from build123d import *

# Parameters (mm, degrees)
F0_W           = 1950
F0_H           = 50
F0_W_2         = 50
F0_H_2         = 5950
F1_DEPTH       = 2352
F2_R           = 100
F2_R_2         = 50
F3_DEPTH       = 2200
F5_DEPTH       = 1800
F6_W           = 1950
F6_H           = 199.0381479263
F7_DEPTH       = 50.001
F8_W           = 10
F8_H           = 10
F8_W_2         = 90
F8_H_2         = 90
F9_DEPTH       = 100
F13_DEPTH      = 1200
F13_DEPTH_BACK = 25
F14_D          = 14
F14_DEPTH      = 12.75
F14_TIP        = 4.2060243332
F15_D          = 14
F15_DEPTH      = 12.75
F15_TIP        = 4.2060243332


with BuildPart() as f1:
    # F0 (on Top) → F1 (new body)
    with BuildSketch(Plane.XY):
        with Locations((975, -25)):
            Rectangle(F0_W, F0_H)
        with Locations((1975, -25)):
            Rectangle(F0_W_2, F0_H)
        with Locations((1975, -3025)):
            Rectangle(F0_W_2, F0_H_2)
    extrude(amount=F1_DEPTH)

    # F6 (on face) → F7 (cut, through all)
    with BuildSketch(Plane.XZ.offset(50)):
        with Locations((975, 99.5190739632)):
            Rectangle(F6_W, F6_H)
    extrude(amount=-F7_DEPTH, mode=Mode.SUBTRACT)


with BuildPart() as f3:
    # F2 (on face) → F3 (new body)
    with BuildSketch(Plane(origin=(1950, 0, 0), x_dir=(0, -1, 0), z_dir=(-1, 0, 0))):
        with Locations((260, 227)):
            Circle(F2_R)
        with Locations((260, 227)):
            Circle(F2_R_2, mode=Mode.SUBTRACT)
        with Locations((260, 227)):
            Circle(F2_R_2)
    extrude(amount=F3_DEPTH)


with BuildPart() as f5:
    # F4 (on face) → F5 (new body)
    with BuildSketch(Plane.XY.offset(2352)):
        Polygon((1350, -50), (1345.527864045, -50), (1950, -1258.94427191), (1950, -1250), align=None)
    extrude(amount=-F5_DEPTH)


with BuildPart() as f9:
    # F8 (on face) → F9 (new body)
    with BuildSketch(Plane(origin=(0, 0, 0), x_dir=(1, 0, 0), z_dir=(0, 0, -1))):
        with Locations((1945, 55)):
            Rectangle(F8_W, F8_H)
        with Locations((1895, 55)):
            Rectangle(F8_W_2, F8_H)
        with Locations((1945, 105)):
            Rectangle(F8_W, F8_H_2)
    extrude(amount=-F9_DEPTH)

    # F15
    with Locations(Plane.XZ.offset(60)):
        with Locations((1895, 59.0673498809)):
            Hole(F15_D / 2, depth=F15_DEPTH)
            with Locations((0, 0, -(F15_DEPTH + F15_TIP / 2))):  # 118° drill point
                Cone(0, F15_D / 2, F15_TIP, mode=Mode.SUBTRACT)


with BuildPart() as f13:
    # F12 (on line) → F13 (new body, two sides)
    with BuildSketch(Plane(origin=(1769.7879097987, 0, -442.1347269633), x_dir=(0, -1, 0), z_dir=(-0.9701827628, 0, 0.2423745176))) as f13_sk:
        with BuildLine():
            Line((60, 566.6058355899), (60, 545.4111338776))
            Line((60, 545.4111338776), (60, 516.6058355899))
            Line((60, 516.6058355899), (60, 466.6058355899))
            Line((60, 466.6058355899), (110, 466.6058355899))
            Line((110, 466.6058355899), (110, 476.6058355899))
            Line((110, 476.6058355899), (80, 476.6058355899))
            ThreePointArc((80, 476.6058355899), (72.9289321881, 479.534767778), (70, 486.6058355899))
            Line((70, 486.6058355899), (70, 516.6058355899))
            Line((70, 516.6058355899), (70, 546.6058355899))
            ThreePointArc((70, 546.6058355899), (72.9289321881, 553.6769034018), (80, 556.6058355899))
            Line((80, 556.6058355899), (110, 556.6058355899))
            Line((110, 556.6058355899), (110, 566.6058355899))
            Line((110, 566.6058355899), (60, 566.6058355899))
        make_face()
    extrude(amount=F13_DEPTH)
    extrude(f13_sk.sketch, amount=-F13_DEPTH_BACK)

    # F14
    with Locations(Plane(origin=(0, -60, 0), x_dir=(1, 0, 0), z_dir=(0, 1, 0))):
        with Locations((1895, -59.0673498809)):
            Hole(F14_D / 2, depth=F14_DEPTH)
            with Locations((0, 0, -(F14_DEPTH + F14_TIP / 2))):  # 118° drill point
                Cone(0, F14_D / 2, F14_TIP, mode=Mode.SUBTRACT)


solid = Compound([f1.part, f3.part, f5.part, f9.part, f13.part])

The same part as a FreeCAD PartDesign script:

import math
import FreeCAD as App
import Part
import Sketcher
Q = App.Units.Quantity


def add_polygon(sketch, points):
    """Adds a closed chain of lines whose ends are joined by coincident constraints."""
    first, n = sketch.GeometryCount, len(points)
    for a, b in zip(points, points[1:] + points[:1]):
        sketch.addGeometry(Part.LineSegment(App.Vector(*a, 0), App.Vector(*b, 0)), False)
    for i in range(n):
        sketch.addConstraint(Sketcher.Constraint("Coincident", first + i, 2, first + (i + 1) % n, 1))

doc = App.newDocument("Part")
body = doc.addObject("PartDesign::Body", "Body")

sketch1 = body.newObject("Sketcher::SketchObject", "Sketch")
sketch1.AttachmentSupport = (doc.getObject("XY_Plane"), [""])
sketch1.MapMode = "FlatFace"
add_polygon(sketch1, [(0, 0), (0, -50), (1950, -50), (1950, -6000), (2000, -6000), (2000, 0)])
sketch1.addConstraint(Sketcher.Constraint("Vertical", 0))
sketch1.addConstraint(Sketcher.Constraint("Horizontal", 1))
sketch1.addConstraint(Sketcher.Constraint("Vertical", 2))
sketch1.addConstraint(Sketcher.Constraint("Horizontal", 3))
sketch1.addConstraint(Sketcher.Constraint("Vertical", 4))
sketch1.addConstraint(Sketcher.Constraint("Horizontal", 5))
sketch1.addConstraint(Sketcher.Constraint("Coincident", 5, 2, -1, 1))
sketch1.addConstraint(Sketcher.Constraint("Equal", 3, 0))
sketch1.addConstraint(Sketcher.Constraint("DistanceX", 1, 1, 1, 2, Q("1950 mm")))
sketch1.addConstraint(Sketcher.Constraint("DistanceX", 3, 1, 3, 2, Q("50 mm")))
sketch1.addConstraint(Sketcher.Constraint("DistanceY", 2, 2, 2, 1, Q("5950 mm")))
pad1 = body.newObject("PartDesign::Pad", "Pad")
pad1.Profile = sketch1
pad1.Length = 2352

sketch2 = body.newObject("Sketcher::SketchObject", "Sketch001")
sketch2.AttachmentSupport = (doc.getObject("XZ_Plane"), [""])
sketch2.MapMode = "FlatFace"
sketch2.AttachmentOffset = App.Placement(App.Vector(0, 0, 50), App.Rotation())
add_polygon(sketch2, [(0, 199), (0, 0), (1950, 0), (1950, 199)])
sketch2.addConstraint(Sketcher.Constraint("Vertical", 0))
sketch2.addConstraint(Sketcher.Constraint("Horizontal", 1))
sketch2.addConstraint(Sketcher.Constraint("Vertical", 2))
sketch2.addConstraint(Sketcher.Constraint("Horizontal", 3))
sketch2.addConstraint(Sketcher.Constraint("Coincident", 0, 2, -1, 1))
sketch2.addConstraint(Sketcher.Constraint("DistanceX", 1, 1, 1, 2, Q("1950 mm")))
sketch2.addConstraint(Sketcher.Constraint("DistanceY", 0, 2, 0, 1, Q("199.038148 mm")))
pocket1 = body.newObject("PartDesign::Pocket", "Pocket")
pocket1.Profile = sketch2
pocket1.Type = "ThroughAll"
body2 = doc.addObject("PartDesign::Body", "Body001")

sketch3 = body2.newObject("Sketcher::SketchObject", "Sketch002")
sketch3.AttachmentSupport = (doc.getObject("YZ_Plane001"), [""])
sketch3.MapMode = "FlatFace"
sketch3.AttachmentOffset = App.Placement(App.Vector(0, 0, 1950), App.Rotation())
sketch3.addGeometry(Part.Circle(App.Vector(-260, 227, 0), App.Vector(0, 0, 1), 100), False)
sketch3.addConstraint(Sketcher.Constraint("Diameter", 0, Q("200 mm")))
sketch3.addConstraint(Sketcher.Constraint("DistanceX", 0, 3, -1, 1, Q("260 mm")))
sketch3.addConstraint(Sketcher.Constraint("DistanceY", -1, 1, 0, 3, Q("227 mm")))
pad2 = body2.newObject("PartDesign::Pad", "Pad001")
pad2.Profile = sketch3
pad2.Length = 2200
pad2.Reversed = True
body3 = doc.addObject("PartDesign::Body", "Body002")

sketch4 = body3.newObject("Sketcher::SketchObject", "Sketch003")
sketch4.AttachmentSupport = (doc.getObject("XY_Plane002"), [""])
sketch4.MapMode = "FlatFace"
sketch4.AttachmentOffset = App.Placement(App.Vector(0, 0, 2352), App.Rotation())
add_polygon(sketch4, [(1350, -50), (1345.5, -50), (1950, -1258.9), (1950, -1250)])
sketch4.addConstraint(Sketcher.Constraint("Horizontal", 0))
sketch4.addConstraint(Sketcher.Constraint("Vertical", 2))
sketch4.addConstraint(Sketcher.Constraint("Parallel", 1, 3))
sketch4.addConstraint(Sketcher.Constraint("DistanceY", 0, 2, -1, 1, Q("50 mm")))
sketch4.addConstraint(Sketcher.Constraint("DistanceX", -1, 1, 1, 2, Q("1950 mm")))
sketch4.addConstraint(Sketcher.Constraint("DistanceY", 2, 2, -1, 1, Q("1250 mm")))
sketch4.addConstraint(Sketcher.Constraint("DistanceX", -1, 1, 3, 2, Q("1350 mm")))
sketch4.addConstraint(Sketcher.Constraint("DistanceY", 2, 1, 2, 2, Q("8.944272 mm")))
pad3 = body3.newObject("PartDesign::Pad", "Pad002")
pad3.Profile = sketch4
pad3.Length = 1800
pad3.Reversed = True
body4 = doc.addObject("PartDesign::Body", "Body003")

sketch5 = body4.newObject("Sketcher::SketchObject", "Sketch004")
sketch5.AttachmentSupport = (doc.getObject("XY_Plane003"), [""])
sketch5.MapMode = "FlatFace"
add_polygon(sketch5, [(1950, -50), (1950, -150), (1940, -150), (1940, -60), (1850, -60), (1850, -50)])
sketch5.addConstraint(Sketcher.Constraint("Vertical", 0))
sketch5.addConstraint(Sketcher.Constraint("Horizontal", 1))
sketch5.addConstraint(Sketcher.Constraint("Vertical", 2))
sketch5.addConstraint(Sketcher.Constraint("Horizontal", 3))
sketch5.addConstraint(Sketcher.Constraint("Vertical", 4))
sketch5.addConstraint(Sketcher.Constraint("Horizontal", 5))
sketch5.addConstraint(Sketcher.Constraint("Equal", 5, 0))
sketch5.addConstraint(Sketcher.Constraint("Equal", 3, 2))
sketch5.addConstraint(Sketcher.Constraint("DistanceX", 1, 2, 1, 1, Q("10 mm")))
sketch5.addConstraint(Sketcher.Constraint("DistanceX", 3, 2, 3, 1, Q("90 mm")))
sketch5.addConstraint(Sketcher.Constraint("DistanceX", -1, 1, 0, 2, Q("1950 mm")))
sketch5.addConstraint(Sketcher.Constraint("DistanceY", 0, 2, -1, 1, Q("150 mm")))
pad4 = body4.newObject("PartDesign::Pad", "Pad003")
pad4.Profile = sketch5
pad4.Length = 100

sketch6 = body4.newObject("Sketcher::SketchObject", "Sketch005")
sketch6.AttachmentSupport = (doc.getObject("XZ_Plane003"), [""])
sketch6.MapMode = "FlatFace"
sketch6.AttachmentOffset = App.Placement(App.Vector(0, 0, 60), App.Rotation())
sketch6.addGeometry(Part.Circle(App.Vector(1895, 59, 0), App.Vector(0, 0, 1), 7), False)
sketch6.addConstraint(Sketcher.Constraint("Diameter", 0, Q("14 mm")))
sketch6.addConstraint(Sketcher.Constraint("DistanceX", -1, 1, 0, 3, Q("1895 mm")))
sketch6.addConstraint(Sketcher.Constraint("DistanceY", -1, 1, 0, 3, Q("59.06735 mm")))
doc.recompute()
hole = body4.newObject("PartDesign::Hole", "Hole")
hole.Profile = sketch6
hole.ThreadType = "None"
hole.Diameter = 14
hole.DepthType = "Dimension"
hole.Depth = 12.75
hole.DrillPoint = "Angled"
hole.DrillPointAngle = 118
body5 = doc.addObject("PartDesign::Body", "Body004")

sketch7 = body5.newObject("Sketcher::SketchObject", "Sketch006")
sketch7.Placement = App.Placement(App.Vector(1769.78791, 0, -442.134727), App.Rotation(App.Vector(0, -1, 0), App.Vector(0.242374518, 0, 0.970182763), App.Vector(-0.970182763, 0, 0.242374518), "ZXY"))
sketch7.addGeometry(Part.LineSegment(App.Vector(60, 567, 0), App.Vector(60, 467, 0)), False)
sketch7.addGeometry(Part.LineSegment(App.Vector(60, 467, 0), App.Vector(110, 467, 0)), False)
sketch7.addGeometry(Part.LineSegment(App.Vector(110, 467, 0), App.Vector(110, 477, 0)), False)
sketch7.addGeometry(Part.LineSegment(App.Vector(110, 477, 0), App.Vector(80, 477, 0)), False)
sketch7.addGeometry(Part.ArcOfCircle(Part.Circle(App.Vector(80, 487, 0), App.Vector(0, 0, 1), 10), math.radians(180), math.radians(270)), False)
sketch7.addGeometry(Part.LineSegment(App.Vector(70, 487, 0), App.Vector(70, 547, 0)), False)
sketch7.addGeometry(Part.ArcOfCircle(Part.Circle(App.Vector(80, 547, 0), App.Vector(0, 0, 1), 10), math.radians(90), math.radians(180)), False)
sketch7.addGeometry(Part.LineSegment(App.Vector(80, 557, 0), App.Vector(110, 557, 0)), False)
sketch7.addGeometry(Part.LineSegment(App.Vector(110, 557, 0), App.Vector(110, 567, 0)), False)
sketch7.addGeometry(Part.LineSegment(App.Vector(110, 567, 0), App.Vector(60, 567, 0)), False)
sketch7.addConstraint(Sketcher.Constraint("Coincident", 0, 2, 1, 1))
sketch7.addConstraint(Sketcher.Constraint("Coincident", 1, 2, 2, 1))
sketch7.addConstraint(Sketcher.Constraint("Coincident", 2, 2, 3, 1))
sketch7.addConstraint(Sketcher.Constraint("Tangent", 3, 2, 4, 2))
sketch7.addConstraint(Sketcher.Constraint("Tangent", 4, 1, 5, 1))
sketch7.addConstraint(Sketcher.Constraint("Tangent", 5, 2, 6, 2))
sketch7.addConstraint(Sketcher.Constraint("Tangent", 6, 1, 7, 1))
sketch7.addConstraint(Sketcher.Constraint("Coincident", 7, 2, 8, 1))
sketch7.addConstraint(Sketcher.Constraint("Coincident", 8, 2, 9, 1))
sketch7.addConstraint(Sketcher.Constraint("Coincident", 9, 2, 0, 1))
sketch7.addConstraint(Sketcher.Constraint("Vertical", 0))
sketch7.addConstraint(Sketcher.Constraint("Horizontal", 1))
sketch7.addConstraint(Sketcher.Constraint("Vertical", 2))
sketch7.addConstraint(Sketcher.Constraint("Horizontal", 3))
sketch7.addConstraint(Sketcher.Constraint("Vertical", 5))
sketch7.addConstraint(Sketcher.Constraint("Horizontal", 7))
sketch7.addConstraint(Sketcher.Constraint("Vertical", 8))
sketch7.addConstraint(Sketcher.Constraint("Horizontal", 9))
sketch7.addConstraint(Sketcher.Constraint("Equal", 4, 6))
sketch7.addConstraint(Sketcher.Constraint("Vertical", 2, 2, 7, 2))
sketch7.addConstraint(Sketcher.Constraint("Equal", 2, 8))
sketch7.addConstraint(Sketcher.Constraint("Radius", 4, Q("10 mm")))
sketch7.addConstraint(Sketcher.Constraint("DistanceX", 1, 1, 1, 2, Q("50 mm")))
sketch7.addConstraint(Sketcher.Constraint("DistanceX", 3, 2, 3, 1, Q("30 mm")))
sketch7.addConstraint(Sketcher.Constraint("DistanceY", 0, 2, 0, 1, Q("100 mm")))
sketch7.addConstraint(Sketcher.Constraint("DistanceY", 2, 1, 2, 2, Q("10 mm")))
sketch7.addConstraint(Sketcher.Constraint("DistanceX", -1, 1, 4, 3, Q("80 mm")))
sketch7.addConstraint(Sketcher.Constraint("DistanceY", -1, 1, 4, 3, Q("486.605836 mm")))
pad5 = body5.newObject("PartDesign::Pad", "Pad004")
pad5.Profile = sketch7
pad5.Type = "TwoLengths"
pad5.Length = 1200
pad5.Length2 = 25

sketch8 = body5.newObject("Sketcher::SketchObject", "Sketch007")
sketch8.AttachmentSupport = (doc.getObject("XZ_Plane004"), [""])
sketch8.MapMode = "FlatFace"
sketch8.AttachmentOffset = App.Placement(App.Vector(0, 0, 60), App.Rotation())
sketch8.addGeometry(Part.Circle(App.Vector(1895, 59, 0), App.Vector(0, 0, 1), 7), False)
sketch8.addConstraint(Sketcher.Constraint("Diameter", 0, Q("14 mm")))
sketch8.addConstraint(Sketcher.Constraint("DistanceX", -1, 1, 0, 3, Q("1895 mm")))
sketch8.addConstraint(Sketcher.Constraint("DistanceY", -1, 1, 0, 3, Q("59.06735 mm")))
doc.recompute()
hole2 = body5.newObject("PartDesign::Hole", "Hole001")
hole2.Profile = sketch8
hole2.ThreadType = "None"
hole2.Diameter = 14
hole2.DepthType = "Dimension"
hole2.Depth = 12.75
hole2.DrillPoint = "Angled"
hole2.DrillPointAngle = 118
hole2.Reversed = True

doc.recompute()
